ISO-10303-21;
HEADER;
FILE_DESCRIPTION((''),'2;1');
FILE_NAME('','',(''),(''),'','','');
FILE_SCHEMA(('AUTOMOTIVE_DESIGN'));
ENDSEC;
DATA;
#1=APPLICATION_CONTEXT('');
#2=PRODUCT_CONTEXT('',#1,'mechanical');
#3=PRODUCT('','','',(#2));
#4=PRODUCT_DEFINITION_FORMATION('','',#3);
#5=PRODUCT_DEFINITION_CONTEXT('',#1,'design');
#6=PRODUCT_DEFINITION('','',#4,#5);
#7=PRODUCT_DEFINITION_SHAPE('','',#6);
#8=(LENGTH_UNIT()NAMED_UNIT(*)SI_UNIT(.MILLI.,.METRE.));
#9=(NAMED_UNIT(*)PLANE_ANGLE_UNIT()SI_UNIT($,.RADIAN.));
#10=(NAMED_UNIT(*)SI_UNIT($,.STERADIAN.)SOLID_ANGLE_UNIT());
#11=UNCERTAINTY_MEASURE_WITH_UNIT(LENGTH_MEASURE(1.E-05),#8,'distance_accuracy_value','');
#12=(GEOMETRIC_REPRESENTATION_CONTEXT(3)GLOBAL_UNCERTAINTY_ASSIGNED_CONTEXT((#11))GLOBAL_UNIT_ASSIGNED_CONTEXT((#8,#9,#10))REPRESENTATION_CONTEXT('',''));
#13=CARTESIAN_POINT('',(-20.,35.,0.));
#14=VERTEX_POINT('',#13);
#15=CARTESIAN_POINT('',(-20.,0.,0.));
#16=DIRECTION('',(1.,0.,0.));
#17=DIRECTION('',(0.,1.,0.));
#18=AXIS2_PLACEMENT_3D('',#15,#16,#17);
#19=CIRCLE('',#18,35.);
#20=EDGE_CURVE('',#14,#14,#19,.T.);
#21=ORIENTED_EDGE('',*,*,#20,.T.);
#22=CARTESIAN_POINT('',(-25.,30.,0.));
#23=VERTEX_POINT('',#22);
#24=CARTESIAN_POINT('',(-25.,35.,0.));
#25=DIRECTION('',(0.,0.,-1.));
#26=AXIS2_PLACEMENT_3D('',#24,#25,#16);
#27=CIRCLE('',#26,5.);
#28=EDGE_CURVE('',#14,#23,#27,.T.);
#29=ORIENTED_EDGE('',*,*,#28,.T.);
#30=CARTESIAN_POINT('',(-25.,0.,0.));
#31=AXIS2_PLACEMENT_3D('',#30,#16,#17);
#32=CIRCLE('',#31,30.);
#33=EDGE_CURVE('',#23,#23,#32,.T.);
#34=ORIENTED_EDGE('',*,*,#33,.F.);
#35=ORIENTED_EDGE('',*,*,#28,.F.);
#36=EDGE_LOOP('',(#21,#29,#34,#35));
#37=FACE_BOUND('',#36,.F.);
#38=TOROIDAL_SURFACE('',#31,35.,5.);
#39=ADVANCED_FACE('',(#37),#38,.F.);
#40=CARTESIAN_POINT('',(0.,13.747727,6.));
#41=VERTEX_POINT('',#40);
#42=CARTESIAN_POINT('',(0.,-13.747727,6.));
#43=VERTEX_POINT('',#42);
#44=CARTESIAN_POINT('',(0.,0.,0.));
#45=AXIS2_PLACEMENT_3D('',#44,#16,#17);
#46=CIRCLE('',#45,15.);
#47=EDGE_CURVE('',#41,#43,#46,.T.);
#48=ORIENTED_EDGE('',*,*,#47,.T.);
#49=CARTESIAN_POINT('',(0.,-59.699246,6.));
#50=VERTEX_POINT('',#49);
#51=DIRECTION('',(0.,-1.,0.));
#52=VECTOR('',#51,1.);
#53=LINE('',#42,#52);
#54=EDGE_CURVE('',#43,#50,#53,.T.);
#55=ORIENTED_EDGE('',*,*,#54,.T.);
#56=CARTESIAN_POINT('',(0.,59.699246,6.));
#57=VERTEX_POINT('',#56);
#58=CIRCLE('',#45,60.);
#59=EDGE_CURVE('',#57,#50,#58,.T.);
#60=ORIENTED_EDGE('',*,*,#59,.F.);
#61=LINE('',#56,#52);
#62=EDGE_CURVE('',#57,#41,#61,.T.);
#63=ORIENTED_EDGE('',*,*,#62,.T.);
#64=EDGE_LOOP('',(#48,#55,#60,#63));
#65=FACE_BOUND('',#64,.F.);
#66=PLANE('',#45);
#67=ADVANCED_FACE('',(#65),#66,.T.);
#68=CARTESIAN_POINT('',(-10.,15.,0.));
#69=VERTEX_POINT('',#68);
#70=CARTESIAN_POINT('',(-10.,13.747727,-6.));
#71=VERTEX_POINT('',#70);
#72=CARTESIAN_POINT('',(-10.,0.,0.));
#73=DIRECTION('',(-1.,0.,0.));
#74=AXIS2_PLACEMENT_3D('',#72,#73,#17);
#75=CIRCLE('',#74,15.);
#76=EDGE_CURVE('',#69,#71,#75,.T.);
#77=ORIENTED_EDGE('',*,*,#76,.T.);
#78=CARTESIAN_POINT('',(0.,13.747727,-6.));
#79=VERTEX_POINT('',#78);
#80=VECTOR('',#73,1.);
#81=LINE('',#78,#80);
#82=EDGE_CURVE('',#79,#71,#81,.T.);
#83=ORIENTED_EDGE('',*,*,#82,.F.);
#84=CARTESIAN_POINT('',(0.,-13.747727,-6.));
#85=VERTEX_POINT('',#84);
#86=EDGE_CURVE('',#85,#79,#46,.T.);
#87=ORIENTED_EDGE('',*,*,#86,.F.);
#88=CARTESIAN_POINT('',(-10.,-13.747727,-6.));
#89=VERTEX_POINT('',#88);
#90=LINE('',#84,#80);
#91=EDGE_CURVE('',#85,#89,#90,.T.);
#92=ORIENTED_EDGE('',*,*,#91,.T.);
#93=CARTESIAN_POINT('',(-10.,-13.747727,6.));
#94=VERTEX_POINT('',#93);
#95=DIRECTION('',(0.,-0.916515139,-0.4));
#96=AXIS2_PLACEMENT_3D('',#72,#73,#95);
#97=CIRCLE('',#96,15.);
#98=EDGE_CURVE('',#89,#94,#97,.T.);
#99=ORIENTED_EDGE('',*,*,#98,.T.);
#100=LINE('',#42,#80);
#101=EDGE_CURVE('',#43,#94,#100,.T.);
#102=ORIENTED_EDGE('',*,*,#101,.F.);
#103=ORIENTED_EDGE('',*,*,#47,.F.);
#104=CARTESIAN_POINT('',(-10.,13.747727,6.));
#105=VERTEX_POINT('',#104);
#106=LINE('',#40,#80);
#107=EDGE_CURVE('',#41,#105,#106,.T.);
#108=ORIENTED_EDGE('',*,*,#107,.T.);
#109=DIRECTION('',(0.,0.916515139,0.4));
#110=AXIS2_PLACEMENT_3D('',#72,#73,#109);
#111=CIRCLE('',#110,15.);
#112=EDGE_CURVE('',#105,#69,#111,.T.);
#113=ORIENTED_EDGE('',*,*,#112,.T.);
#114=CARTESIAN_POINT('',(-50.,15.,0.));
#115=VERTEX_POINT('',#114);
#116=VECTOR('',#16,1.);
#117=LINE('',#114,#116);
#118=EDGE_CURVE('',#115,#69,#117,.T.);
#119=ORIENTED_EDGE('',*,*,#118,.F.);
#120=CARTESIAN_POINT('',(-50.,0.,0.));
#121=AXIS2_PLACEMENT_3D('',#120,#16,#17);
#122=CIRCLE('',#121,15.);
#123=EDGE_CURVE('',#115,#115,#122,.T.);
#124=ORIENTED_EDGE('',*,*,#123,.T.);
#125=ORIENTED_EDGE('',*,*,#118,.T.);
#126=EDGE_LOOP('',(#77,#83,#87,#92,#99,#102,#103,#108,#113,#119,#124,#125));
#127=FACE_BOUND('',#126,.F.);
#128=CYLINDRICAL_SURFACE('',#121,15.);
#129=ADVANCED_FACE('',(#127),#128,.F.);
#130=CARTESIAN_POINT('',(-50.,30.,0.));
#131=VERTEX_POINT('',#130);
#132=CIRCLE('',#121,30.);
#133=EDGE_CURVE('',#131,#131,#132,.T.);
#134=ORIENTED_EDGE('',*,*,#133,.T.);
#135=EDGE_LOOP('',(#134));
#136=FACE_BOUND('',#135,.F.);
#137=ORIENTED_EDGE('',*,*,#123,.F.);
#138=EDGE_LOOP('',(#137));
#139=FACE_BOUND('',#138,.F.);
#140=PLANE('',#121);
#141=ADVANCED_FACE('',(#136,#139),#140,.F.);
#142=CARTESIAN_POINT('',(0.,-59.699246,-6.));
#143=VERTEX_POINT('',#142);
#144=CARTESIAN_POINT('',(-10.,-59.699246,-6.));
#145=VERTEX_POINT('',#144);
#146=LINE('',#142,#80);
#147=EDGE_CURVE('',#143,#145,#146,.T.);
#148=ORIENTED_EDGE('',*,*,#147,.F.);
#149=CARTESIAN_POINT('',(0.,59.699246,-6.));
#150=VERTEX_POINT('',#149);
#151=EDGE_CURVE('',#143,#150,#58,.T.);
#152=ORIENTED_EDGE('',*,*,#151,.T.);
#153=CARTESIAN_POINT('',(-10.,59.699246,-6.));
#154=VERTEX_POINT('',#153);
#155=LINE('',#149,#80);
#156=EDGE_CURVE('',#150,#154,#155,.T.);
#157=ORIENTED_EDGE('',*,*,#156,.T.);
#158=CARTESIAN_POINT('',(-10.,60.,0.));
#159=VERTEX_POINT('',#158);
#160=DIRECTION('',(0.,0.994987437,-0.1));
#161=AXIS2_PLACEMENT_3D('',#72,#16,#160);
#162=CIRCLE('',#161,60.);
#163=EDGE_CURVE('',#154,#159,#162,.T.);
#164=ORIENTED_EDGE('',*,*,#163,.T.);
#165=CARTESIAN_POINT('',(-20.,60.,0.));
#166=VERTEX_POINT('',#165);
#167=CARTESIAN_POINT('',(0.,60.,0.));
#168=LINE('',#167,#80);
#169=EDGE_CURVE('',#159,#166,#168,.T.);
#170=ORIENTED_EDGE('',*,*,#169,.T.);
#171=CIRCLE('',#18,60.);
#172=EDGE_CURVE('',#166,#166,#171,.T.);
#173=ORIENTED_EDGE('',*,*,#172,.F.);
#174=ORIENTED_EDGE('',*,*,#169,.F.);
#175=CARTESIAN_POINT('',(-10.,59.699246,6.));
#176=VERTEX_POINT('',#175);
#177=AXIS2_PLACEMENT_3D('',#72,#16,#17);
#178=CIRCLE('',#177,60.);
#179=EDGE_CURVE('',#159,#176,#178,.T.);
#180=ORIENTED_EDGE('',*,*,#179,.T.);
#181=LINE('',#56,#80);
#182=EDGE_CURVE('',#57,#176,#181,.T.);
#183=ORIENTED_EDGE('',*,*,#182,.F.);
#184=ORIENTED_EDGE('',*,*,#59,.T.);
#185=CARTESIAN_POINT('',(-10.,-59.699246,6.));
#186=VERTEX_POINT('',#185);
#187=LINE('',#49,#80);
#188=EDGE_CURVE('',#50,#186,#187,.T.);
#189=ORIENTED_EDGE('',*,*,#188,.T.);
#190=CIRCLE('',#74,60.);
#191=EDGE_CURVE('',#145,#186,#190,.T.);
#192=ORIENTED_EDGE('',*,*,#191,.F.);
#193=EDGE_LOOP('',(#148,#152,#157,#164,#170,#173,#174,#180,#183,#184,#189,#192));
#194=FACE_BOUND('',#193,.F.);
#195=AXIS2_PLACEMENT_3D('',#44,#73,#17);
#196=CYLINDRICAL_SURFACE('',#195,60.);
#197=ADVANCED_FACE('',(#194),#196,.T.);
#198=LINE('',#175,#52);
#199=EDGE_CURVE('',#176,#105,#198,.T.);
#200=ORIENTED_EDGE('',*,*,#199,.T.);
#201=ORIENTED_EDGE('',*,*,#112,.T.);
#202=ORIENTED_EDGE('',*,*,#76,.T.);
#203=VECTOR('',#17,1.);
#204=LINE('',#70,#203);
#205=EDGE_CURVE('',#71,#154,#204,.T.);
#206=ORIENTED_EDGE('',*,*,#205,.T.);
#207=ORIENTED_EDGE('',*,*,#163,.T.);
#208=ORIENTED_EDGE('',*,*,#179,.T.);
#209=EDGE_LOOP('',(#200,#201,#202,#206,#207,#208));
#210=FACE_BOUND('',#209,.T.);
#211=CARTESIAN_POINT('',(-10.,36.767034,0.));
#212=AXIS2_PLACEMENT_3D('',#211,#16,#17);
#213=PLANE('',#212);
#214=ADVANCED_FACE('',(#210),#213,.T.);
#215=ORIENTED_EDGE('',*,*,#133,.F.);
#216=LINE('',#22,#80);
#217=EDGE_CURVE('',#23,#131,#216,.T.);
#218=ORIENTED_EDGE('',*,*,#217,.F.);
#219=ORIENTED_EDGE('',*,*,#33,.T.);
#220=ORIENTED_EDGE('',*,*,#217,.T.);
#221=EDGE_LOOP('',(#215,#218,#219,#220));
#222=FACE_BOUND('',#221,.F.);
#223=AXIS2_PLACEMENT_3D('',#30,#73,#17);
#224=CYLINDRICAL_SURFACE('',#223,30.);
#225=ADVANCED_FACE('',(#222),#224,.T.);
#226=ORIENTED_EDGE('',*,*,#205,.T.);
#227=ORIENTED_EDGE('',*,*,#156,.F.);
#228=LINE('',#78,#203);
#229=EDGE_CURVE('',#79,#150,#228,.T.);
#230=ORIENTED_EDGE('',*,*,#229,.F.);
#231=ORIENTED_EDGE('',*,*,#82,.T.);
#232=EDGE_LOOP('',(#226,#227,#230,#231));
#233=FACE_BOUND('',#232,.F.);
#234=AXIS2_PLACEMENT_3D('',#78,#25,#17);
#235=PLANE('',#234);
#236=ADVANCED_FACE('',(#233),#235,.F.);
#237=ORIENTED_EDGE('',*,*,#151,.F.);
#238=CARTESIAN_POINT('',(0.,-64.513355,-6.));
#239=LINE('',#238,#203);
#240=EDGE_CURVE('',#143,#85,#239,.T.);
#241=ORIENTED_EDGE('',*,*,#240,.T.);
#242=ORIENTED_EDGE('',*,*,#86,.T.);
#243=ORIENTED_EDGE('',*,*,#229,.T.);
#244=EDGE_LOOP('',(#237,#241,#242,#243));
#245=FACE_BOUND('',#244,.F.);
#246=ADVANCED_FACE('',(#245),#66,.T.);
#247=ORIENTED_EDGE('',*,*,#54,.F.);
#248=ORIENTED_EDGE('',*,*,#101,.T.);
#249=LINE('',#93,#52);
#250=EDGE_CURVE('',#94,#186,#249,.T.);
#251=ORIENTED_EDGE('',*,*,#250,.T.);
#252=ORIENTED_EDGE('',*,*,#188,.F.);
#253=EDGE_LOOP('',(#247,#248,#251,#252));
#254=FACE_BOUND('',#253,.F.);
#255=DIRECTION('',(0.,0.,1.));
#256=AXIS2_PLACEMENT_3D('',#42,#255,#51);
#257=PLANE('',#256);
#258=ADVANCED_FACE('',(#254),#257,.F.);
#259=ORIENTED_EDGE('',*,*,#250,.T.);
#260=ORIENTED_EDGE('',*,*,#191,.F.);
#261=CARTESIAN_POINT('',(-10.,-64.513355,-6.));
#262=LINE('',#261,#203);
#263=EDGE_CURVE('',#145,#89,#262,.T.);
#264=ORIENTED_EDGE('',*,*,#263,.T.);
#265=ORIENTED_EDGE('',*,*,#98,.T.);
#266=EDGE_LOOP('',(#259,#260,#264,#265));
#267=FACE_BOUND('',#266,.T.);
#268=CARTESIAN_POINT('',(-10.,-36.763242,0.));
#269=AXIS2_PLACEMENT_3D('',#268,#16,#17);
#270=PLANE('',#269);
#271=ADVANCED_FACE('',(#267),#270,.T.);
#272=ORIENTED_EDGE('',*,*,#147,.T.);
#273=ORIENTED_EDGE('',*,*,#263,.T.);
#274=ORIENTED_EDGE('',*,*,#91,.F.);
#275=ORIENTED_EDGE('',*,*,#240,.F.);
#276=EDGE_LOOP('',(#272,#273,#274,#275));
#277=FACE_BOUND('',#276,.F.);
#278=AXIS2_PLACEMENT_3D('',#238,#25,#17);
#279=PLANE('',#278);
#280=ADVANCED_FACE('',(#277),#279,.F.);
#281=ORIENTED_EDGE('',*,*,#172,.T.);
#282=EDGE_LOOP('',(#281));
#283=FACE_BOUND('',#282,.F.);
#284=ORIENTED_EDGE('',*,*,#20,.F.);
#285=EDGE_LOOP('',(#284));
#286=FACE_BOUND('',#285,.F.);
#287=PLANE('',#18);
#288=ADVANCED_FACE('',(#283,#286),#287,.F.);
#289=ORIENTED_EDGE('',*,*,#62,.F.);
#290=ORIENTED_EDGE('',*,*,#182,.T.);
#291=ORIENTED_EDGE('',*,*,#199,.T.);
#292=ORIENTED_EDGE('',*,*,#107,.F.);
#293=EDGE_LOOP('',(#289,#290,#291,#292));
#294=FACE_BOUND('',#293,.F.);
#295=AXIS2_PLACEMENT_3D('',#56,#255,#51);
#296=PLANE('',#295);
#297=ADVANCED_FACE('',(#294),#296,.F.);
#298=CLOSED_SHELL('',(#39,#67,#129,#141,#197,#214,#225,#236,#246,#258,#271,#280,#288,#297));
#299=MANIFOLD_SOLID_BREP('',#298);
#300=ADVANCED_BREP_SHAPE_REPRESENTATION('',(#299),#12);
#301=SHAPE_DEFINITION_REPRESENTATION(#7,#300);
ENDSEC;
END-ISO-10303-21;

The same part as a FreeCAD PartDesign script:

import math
import FreeCAD as App
import Part
import Sketcher
Q = App.Units.Quantity

doc = App.newDocument("Part")
params = doc.addObject("Spreadsheet::Sheet", "Params")
for row, (alias, value) in enumerate([
    ("sketch1_radius", "5 mm"),
    ("sketch1_width", "50 mm"),
    ("sketch1_width2", "20 mm"),
    ("sketch1_height", "45 mm"),
    ("revolution_angle", "360 deg"),
    ("sketch2_radius", "15 mm"),
    ("sketch2_radius2", "60 mm"),
    ("sketch2_height", "12 mm"),
    ("pocket1_length", "10 mm"),
], start=1):
    params.set(f"A{row}", alias)
    params.set(f"B{row}", "=" + value)
    params.setAlias(f"B{row}", alias)

body = doc.addObject("PartDesign::Body", "Body")

# Sketch on XY plane
sketch1 = body.newObject("Sketcher::SketchObject", "Sketch")
sketch1.AttachmentSupport = (doc.getObject("XY_Plane"), [""])
sketch1.MapMode = "FlatFace"
sketch1.addGeometry([
    Part.LineSegment(App.Vector(-50, 15, 0), App.Vector(0, 15, 0)),  # 0
    Part.LineSegment(App.Vector(0, 15, 0), App.Vector(0, 60, 0)),  # 1
    Part.LineSegment(App.Vector(0, 60, 0), App.Vector(-20, 60, 0)),  # 2
    Part.LineSegment(App.Vector(-20, 60, 0), App.Vector(-20, 35, 0)),  # 3
    Part.ArcOfCircle(Part.Circle(App.Vector(-25, 35, 0), App.Vector(0, 0, 1), 5), math.radians(-90), math.radians(0)),  # 4
    Part.LineSegment(App.Vector(-25, 30, 0), App.Vector(-50, 30, 0)),  # 5
    Part.LineSegment(App.Vector(-50, 30, 0), App.Vector(-50, 15, 0)),  # 6
], False)
sketch1.addConstraint([
    Sketcher.Constraint("Coincident", 0, 2, 1, 1),
    Sketcher.Constraint("Coincident", 1, 2, 2, 1),
    Sketcher.Constraint("Coincident", 2, 2, 3, 1),
    Sketcher.Constraint("Tangent", 3, 2, 4, 2),
    Sketcher.Constraint("Tangent", 4, 1, 5, 1),
    Sketcher.Constraint("Coincident", 5, 2, 6, 1),
    Sketcher.Constraint("Coincident", 6, 2, 0, 1),
    Sketcher.Constraint("Horizontal", 0),
    Sketcher.Constraint("Vertical", 1),
    Sketcher.Constraint("Horizontal", 2),
    Sketcher.Constraint("Vertical", 3),
    Sketcher.Constraint("Horizontal", 5),
    Sketcher.Constraint("Vertical", 6),
    Sketcher.Constraint("PointOnObject", 0, 2, -2),
    Sketcher.Constraint("Equal", 5, 3),
    Sketcher.Constraint("Radius", 4, Q("5 mm")),
    Sketcher.Constraint("DistanceX", 0, 1, 0, 2, Q("50 mm")),
    Sketcher.Constraint("DistanceX", 2, 2, 2, 1, Q("20 mm")),
    Sketcher.Constraint("DistanceY", 1, 1, 1, 2, Q("45 mm")),
    Sketcher.Constraint("DistanceY", -1, 1, 4, 3, Q("35 mm")),
])
sketch1.setExpression("Constraints[15]", "Params.sketch1_radius")
sketch1.setExpression("Constraints[16]", "Params.sketch1_width")
sketch1.setExpression("Constraints[17]", "Params.sketch1_width2")
sketch1.setExpression("Constraints[18]", "Params.sketch1_height")
revolution = body.newObject("PartDesign::Revolution", "Revolution")
revolution.Profile = sketch1
revolution.ReferenceAxis = (sketch1, ["H_Axis"])
revolution.setExpression("Angle", "Params.revolution_angle")

# Sketch on YZ plane
sketch2 = body.newObject("Sketcher::SketchObject", "Sketch001")
sketch2.AttachmentSupport = (doc.getObject("YZ_Plane"), [""])
sketch2.MapMode = "FlatFace"
sketch2.addGeometry([
    Part.LineSegment(App.Vector(-14, 6, 0), App.Vector(-65, 6, 0)),  # 0
    Part.LineSegment(App.Vector(-65, 6, 0), App.Vector(-65, -6, 0)),  # 1
    Part.LineSegment(App.Vector(-65, -6, 0), App.Vector(-14, -6, 0)),  # 2
    Part.ArcOfCircle(Part.Circle(App.Vector(0, 0, 0), App.Vector(0, 0, 1), 15), math.radians(156), math.radians(204)),  # 3
    Part.ArcOfCircle(Part.Circle(App.Vector(0, 0, 0), App.Vector(0, 0, 1), 60), math.radians(-5.74), math.radians(0)),  # 4
    Part.ArcOfCircle(Part.Circle(App.Vector(0, 0, 0), App.Vector(0, 0, 1), 60), math.radians(0), math.radians(5.74)),  # 5
    Part.LineSegment(App.Vector(60, 6, 0), App.Vector(14, 6, 0)),  # 6
    Part.ArcOfCircle(Part.Circle(App.Vector(0, 0, 0), App.Vector(0, 0, 1), 15), math.radians(0), math.radians(24)),  # 7
    Part.ArcOfCircle(Part.Circle(App.Vector(0, 0, 0), App.Vector(0, 0, 1), 15), math.radians(-24), math.radians(0)),  # 8
    Part.LineSegment(App.Vector(14, -6, 0), App.Vector(60, -6, 0)),  # 9
], False)
sketch2.addConstraint([
    Sketcher.Constraint("Coincident", 0, 2, 1, 1),
    Sketcher.Constraint("Coincident", 1, 2, 2, 1),
    Sketcher.Constraint("Coincident", 2, 2, 3, 2),
    Sketcher.Constraint("Coincident", 3, 1, 0, 1),
    Sketcher.Constraint("Tangent", 4, 2, 5, 1),
    Sketcher.Constraint("Coincident", 5, 2, 6, 1),
    Sketcher.Constraint("Coincident", 6, 2, 7, 2),
    Sketcher.Constraint("Tangent", 7, 1, 8, 2),
    Sketcher.Constraint("Coincident", 8, 1, 9, 1),
    Sketcher.Constraint("Coincident", 9, 2, 4, 1),
    Sketcher.Constraint("Horizontal", 0),
    Sketcher.Constraint("Vertical", 1),
    Sketcher.Constraint("Horizontal", 2),
    Sketcher.Constraint("Horizontal", 6),
    Sketcher.Constraint("Horizontal", 9),
    Sketcher.Constraint("Coincident", 3, 3, -1, 1),
    Sketcher.Constraint("Coincident", 4, 3, -1, 1),
    Sketcher.Constraint("Coincident", 7, 3, -1, 1),
    Sketcher.Constraint("Equal", 4, 5),
    Sketcher.Constraint("Equal", 3, 7),
    Sketcher.Constraint("Equal", 7, 8),
    Sketcher.Constraint("PointOnObject", 4, 2, -1),
    Sketcher.Constraint("PointOnObject", 7, 1, -1),
    Sketcher.Constraint("Horizontal", 3, 1, 5, 2),
    Sketcher.Constraint("Horizontal", 2, 2, 8, 1),
    Sketcher.Constraint("Vertical", 2, 2, 3, 1),
    Sketcher.Constraint("Radius", 3, Q("15 mm")),
    Sketcher.Constraint("Radius", 4, Q("60 mm")),
    Sketcher.Constraint("DistanceY", 1, 2, 1, 1, Q("12 mm")),
    Sketcher.Constraint("DistanceX", 0, 2, 0, 1, Q("50.765628 mm")),
])
sketch2.setExpression("Constraints[26]", "Params.sketch2_radius")
sketch2.setExpression("Constraints[27]", "Params.sketch2_radius2")
sketch2.setExpression("Constraints[28]", "Params.sketch2_height")
pocket1 = body.newObject("PartDesign::Pocket", "Pocket")
pocket1.Profile = sketch2
pocket1.setExpression("Length", "Params.pocket1_length")

doc.recompute()
